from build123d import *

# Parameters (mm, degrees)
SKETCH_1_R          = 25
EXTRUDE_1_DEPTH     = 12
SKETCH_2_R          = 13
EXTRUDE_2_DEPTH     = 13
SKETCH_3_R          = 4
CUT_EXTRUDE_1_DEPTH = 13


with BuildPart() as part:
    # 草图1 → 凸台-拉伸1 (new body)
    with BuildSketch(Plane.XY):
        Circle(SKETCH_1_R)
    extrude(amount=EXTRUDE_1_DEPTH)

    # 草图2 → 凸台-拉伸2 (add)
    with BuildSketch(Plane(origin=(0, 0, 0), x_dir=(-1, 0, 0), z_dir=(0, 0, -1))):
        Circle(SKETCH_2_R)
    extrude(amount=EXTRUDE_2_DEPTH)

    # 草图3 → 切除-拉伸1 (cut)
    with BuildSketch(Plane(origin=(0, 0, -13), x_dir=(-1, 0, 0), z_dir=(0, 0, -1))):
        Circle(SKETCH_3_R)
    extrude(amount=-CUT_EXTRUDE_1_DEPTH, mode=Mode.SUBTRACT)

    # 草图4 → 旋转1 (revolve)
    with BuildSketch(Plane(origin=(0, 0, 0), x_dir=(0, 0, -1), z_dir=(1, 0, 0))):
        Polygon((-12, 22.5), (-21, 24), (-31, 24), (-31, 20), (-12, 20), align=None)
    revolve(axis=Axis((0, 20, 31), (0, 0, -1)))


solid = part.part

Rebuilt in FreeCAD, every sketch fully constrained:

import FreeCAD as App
import Part
import Sketcher
from FreeCAD import Vector

doc = App.newDocument("Part")
params = doc.addObject("Spreadsheet::Sheet", "Params")
for row, (alias, value) in enumerate([
    ("sketch1_diameter", "50 mm"),
    ("pad1_length", "12 mm"),
    ("sketch2_diameter", "26 mm"),
    ("pad2_length", "13 mm"),
    ("sketch3_diameter", "8 mm"),
    ("pocket1_length", "13 mm"),
    ("sketch4_width", "4 mm"),
    ("sketch4_height", "10 mm"),
    ("sketch4_height2", "19 mm"),
    ("sketch4_width2", "2.5 mm"),
    ("revolution_angle", "360 deg"),
], start=1):
    params.set(f"A{row}", alias)
    params.set(f"B{row}", "=" + value)
    params.setAlias(f"B{row}", alias)

body = doc.addObject("PartDesign::Body", "Body")

sketch1 = doc.addObject("Sketcher::SketchObject", "Sketch")
body.addObject(sketch1)
sketch1.AttachmentSupport = (doc.XY_Plane, [""])
sketch1.MapMode = "FlatFace"
sketch1.addGeometry(Part.Circle(Vector(0, 0, 0), Vector(0, 0, 1), 25), False)
sketch1.addConstraint(Sketcher.Constraint("Coincident", 0, 3, -1, 1))
sketch1.addConstraint(Sketcher.Constraint("Diameter", 0, 50.0))
sketch1.setExpression("Constraints[1]", "Params.sketch1_diameter")
pad1 = doc.addObject("PartDesign::Pad", "Pad")
body.addObject(pad1)
pad1.Profile = sketch1
pad1.setExpression("Length", "Params.pad1_length")

sketch2 = doc.addObject("Sketcher::SketchObject", "Sketch001")
body.addObject(sketch2)
sketch2.AttachmentSupport = (doc.XY_Plane, [""])
sketch2.MapMode = "FlatFace"
sketch2.addGeometry(Part.Circle(Vector(0, 0, 0), Vector(0, 0, 1), 13), False)
sketch2.addConstraint(Sketcher.Constraint("Coincident", 0, 3, -1, 1))
sketch2.addConstraint(Sketcher.Constraint("Diameter", 0, 26.0))
sketch2.setExpression("Constraints[1]", "Params.sketch2_diameter")
pad2 = doc.addObject("PartDesign::Pad", "Pad001")
body.addObject(pad2)
pad2.Profile = sketch2
pad2.setExpression("Length", "Params.pad2_length")
pad2.Reversed = True

sketch3 = doc.addObject("Sketcher::SketchObject", "Sketch002")
body.addObject(sketch3)
sketch3.AttachmentSupport = (doc.XY_Plane, [""])
sketch3.MapMode = "FlatFace"
sketch3.AttachmentOffset = App.Placement(Vector(0, 0, -13), App.Rotation())
sketch3.addGeometry(Part.Circle(Vector(0, 0, 0), Vector(0, 0, 1), 4), False)
sketch3.addConstraint(Sketcher.Constraint("Coincident", 0, 3, -1, 1))
sketch3.addConstraint(Sketcher.Constraint("Diameter", 0, 8.0))
sketch3.setExpression("Constraints[1]", "Params.sketch3_diameter")
pocket1 = doc.addObject("PartDesign::Pocket", "Pocket")
body.addObject(pocket1)
pocket1.Profile = sketch3
pocket1.setExpression("Length", "Params.pocket1_length")
pocket1.Reversed = True

sketch4 = doc.addObject("Sketcher::SketchObject", "Sketch003")
body.addObject(sketch4)
sketch4.AttachmentSupport = (doc.YZ_Plane, [""])
sketch4.MapMode = "FlatFace"
sketch4.addGeometry(Part.LineSegment(Vector(22.5, 12, 0), Vector(24, 21, 0)), False)
sketch4.addGeometry(Part.LineSegment(Vector(24, 21, 0), Vector(24, 31, 0)), False)
sketch4.addGeometry(Part.LineSegment(Vector(24, 31, 0), Vector(20, 31, 0)), False)
sketch4.addGeometry(Part.LineSegment(Vector(20, 31, 0), Vector(20, 12, 0)), False)
sketch4.addGeometry(Part.LineSegment(Vector(20, 12, 0), Vector(22.5, 12, 0)), False)
sketch4.addGeometry(Part.LineSegment(Vector(20, 31, 0), Vector(20, 12, 0)), True)
sketch4.addConstraint(Sketcher.Constraint("Coincident", 0, 2, 1, 1))
sketch4.addConstraint(Sketcher.Constraint("Coincident", 1, 2, 2, 1))
sketch4.addConstraint(Sketcher.Constraint("Coincident", 2, 2, 3, 1))
sketch4.addConstraint(Sketcher.Constraint("Coincident", 3, 2, 4, 1))
sketch4.addConstraint(Sketcher.Constraint("Coincident", 4, 2, 0, 1))
sketch4.addConstraint(Sketcher.Constraint("Vertical", 1))
sketch4.addConstraint(Sketcher.Constraint("Horizontal", 2))
sketch4.addConstraint(Sketcher.Constraint("Vertical", 3))
sketch4.addConstraint(Sketcher.Constraint("Horizontal", 4))
sketch4.addConstraint(Sketcher.Constraint("Vertical", 5))
sketch4.addConstraint(Sketcher.Constraint("Coincident", 5, 1, 2, 2))
sketch4.addConstraint(Sketcher.Constraint("Horizontal", 4, 2, 5, 2))
sketch4.addConstraint(Sketcher.Constraint("DistanceX", 2, 2, 2, 1, 4.0))
sketch4.addConstraint(Sketcher.Constraint("DistanceY", 1, 1, 1, 2, 10.0))
sketch4.addConstraint(Sketcher.Constraint("DistanceY", 3, 2, 3, 1, 19.0))
sketch4.addConstraint(Sketcher.Constraint("DistanceX", 4, 1, 4, 2, 2.5))
sketch4.addConstraint(Sketcher.Constraint("DistanceX", -1, 1, 0, 2, 24.0))
sketch4.addConstraint(Sketcher.Constraint("DistanceY", -1, 1, 0, 2, 21.0))
sketch4.setExpression("Constraints[12]", "Params.sketch4_width")
sketch4.setExpression("Constraints[13]", "Params.sketch4_height")
sketch4.setExpression("Constraints[14]", "Params.sketch4_height2")
sketch4.setExpression("Constraints[15]", "Params.sketch4_width2")
revolution = doc.addObject("PartDesign::Revolution", "Revolution")
body.addObject(revolution)
revolution.Profile = sketch4
revolution.ReferenceAxis = (sketch4, ["Axis0"])
revolution.setExpression("Angle", "Params.revolution_angle")

doc.recompute()
